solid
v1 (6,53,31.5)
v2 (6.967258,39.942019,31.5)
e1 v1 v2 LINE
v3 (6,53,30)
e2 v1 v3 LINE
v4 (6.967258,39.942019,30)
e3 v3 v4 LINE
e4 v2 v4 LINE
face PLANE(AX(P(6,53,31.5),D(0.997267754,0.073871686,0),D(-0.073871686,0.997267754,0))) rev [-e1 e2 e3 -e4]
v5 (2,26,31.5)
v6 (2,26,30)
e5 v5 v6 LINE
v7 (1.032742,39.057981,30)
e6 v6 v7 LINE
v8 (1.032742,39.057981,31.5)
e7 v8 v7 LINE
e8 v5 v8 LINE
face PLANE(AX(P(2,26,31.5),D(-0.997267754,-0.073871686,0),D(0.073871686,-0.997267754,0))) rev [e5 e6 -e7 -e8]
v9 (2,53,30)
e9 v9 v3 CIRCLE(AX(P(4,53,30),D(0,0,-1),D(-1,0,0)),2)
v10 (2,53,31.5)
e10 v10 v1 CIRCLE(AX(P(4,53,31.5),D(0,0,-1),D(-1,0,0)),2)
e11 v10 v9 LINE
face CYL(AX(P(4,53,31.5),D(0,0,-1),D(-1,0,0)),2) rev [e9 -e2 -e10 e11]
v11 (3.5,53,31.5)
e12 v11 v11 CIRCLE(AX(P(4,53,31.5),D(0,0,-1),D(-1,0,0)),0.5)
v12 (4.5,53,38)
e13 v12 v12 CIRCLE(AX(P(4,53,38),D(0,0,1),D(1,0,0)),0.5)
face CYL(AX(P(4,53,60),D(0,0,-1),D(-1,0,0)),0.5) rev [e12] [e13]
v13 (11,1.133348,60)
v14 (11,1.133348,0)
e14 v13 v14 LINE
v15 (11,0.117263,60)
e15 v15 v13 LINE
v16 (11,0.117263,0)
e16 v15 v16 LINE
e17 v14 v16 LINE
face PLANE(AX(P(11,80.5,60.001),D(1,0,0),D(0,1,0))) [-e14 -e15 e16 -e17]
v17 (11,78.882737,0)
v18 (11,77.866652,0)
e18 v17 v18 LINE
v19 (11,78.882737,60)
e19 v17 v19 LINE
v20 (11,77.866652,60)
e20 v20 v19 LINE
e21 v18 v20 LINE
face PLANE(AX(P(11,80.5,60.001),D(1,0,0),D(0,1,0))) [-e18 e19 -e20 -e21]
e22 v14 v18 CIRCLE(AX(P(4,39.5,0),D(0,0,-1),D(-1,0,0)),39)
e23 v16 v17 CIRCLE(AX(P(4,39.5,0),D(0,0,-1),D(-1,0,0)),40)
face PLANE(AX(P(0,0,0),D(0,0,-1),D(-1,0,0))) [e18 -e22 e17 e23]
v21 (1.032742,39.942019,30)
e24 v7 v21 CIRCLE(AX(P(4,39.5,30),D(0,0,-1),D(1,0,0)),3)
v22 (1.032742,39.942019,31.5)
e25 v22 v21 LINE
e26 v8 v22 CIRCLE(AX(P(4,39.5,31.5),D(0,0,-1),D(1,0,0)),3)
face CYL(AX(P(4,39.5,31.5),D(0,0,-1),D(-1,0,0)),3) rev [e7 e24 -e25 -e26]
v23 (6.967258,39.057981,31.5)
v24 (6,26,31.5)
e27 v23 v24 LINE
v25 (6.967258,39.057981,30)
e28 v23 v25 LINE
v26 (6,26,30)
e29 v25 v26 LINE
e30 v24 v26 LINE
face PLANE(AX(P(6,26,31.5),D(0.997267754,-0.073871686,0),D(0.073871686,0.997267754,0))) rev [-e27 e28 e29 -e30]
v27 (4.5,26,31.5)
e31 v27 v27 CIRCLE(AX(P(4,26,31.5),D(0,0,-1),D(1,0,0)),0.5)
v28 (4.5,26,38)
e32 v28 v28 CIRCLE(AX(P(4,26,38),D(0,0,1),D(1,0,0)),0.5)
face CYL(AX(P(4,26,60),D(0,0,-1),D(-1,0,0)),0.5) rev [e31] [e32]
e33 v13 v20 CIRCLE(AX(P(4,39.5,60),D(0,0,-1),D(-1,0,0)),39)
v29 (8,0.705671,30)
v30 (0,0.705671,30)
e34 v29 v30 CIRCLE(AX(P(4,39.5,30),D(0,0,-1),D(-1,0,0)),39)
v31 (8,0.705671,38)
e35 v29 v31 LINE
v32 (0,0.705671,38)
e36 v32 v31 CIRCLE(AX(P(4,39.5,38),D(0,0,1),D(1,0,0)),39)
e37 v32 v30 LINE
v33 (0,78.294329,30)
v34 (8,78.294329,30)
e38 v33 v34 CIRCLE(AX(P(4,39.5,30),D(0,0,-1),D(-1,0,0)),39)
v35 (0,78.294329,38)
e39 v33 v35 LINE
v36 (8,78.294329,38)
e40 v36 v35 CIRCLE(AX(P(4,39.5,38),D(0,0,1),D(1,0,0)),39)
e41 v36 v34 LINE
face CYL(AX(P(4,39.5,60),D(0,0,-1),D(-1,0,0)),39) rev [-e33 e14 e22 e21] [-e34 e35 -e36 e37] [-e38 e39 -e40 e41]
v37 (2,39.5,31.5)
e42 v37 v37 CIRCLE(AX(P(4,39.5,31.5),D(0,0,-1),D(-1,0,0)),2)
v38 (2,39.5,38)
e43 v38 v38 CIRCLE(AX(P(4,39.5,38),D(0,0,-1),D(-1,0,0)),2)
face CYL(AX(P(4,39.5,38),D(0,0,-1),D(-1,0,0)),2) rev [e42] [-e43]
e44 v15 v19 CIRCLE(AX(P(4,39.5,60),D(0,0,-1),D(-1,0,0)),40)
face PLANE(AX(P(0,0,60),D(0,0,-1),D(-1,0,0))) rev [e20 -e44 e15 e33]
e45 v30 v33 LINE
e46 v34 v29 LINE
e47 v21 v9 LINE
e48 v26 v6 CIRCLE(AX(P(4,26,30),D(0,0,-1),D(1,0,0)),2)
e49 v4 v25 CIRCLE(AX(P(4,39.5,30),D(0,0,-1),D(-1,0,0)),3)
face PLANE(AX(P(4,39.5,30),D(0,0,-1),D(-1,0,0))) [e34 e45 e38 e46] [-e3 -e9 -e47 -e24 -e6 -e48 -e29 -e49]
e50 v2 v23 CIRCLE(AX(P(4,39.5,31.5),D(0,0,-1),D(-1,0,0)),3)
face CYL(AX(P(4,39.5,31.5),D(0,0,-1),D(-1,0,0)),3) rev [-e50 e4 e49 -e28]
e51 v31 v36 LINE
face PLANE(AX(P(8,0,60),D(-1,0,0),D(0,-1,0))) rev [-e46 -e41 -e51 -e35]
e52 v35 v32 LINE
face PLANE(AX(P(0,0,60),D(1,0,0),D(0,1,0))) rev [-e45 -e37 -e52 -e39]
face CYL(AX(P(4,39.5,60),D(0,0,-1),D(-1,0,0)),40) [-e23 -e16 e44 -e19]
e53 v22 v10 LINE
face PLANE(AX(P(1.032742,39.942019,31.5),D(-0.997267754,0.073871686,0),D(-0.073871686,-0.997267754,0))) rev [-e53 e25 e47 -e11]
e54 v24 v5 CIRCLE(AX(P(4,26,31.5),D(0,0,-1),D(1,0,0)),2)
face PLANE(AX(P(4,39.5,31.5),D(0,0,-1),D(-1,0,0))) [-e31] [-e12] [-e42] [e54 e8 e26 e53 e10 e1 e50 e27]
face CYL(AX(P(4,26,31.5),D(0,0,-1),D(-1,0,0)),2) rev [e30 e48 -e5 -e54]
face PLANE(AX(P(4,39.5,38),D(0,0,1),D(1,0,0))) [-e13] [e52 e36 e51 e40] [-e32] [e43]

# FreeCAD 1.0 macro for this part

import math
import FreeCAD as App
import Part
import Sketcher

V = App.Vector
Q = App.Units.Quantity

doc = App.newDocument("Part")
body = doc.addObject("PartDesign::Body", "Body")

# Sketch on XY plane
sketch1 = doc.addObject("Sketcher::SketchObject", "Sketch")
body.addObject(sketch1)
sketch1.AttachmentSupport = (doc.XY_Plane, [""])
sketch1.MapMode = "FlatFace"
sketch1.addGeometry([
    Part.LineSegment(V(0, 79, 0), V(0, 0, 0)),
    Part.LineSegment(V(0, 0, 0), V(8, 0, 0)),
    Part.LineSegment(V(8, 0, 0), V(8, 79, 0)),
    Part.LineSegment(V(8, 79, 0), V(0, 79, 0)),
], False)
sketch1.addConstraint([
    Sketcher.Constraint("Coincident", 0, 2, 1, 1),
    Sketcher.Constraint("Coincident", 1, 2, 2, 1),
    Sketcher.Constraint("Coincident", 2, 2, 3, 1),
    Sketcher.Constraint("Coincident", 3, 2, 0, 1),
    Sketcher.Constraint("Vertical", 0),
    Sketcher.Constraint("Horizontal", 1),
    Sketcher.Constraint("Vertical", 2),
    Sketcher.Constraint("Horizontal", 3),
    Sketcher.Constraint("Coincident", 0, 2, -1, 1),
    Sketcher.Constraint("DistanceX", 1, 1, 1, 2, Q("8 mm")),
    Sketcher.Constraint("DistanceY", 0, 2, 0, 1, Q("79 mm")),
])
pad1 = doc.addObject("PartDesign::Pad", "Pad")
body.addObject(pad1)
pad1.Profile = sketch1
pad1.Length = 60

# Sketch on XY plane
sketch2 = doc.addObject("Sketcher::SketchObject", "Sketch001")
body.addObject(sketch2)
sketch2.AttachmentSupport = (doc.XY_Plane, [""])
sketch2.MapMode = "FlatFace"
sketch2.addGeometry([
    Part.Circle(V(4, 39.5, 0), V(0, 0, 1), 40),
    Part.Circle(V(4, 39.5, 0), V(0, 0, 1), 39),
], False)
sketch2.addConstraint([
    Sketcher.Constraint("Coincident", 1, 3, 0, 3),
    Sketcher.Constraint("Diameter", 0, Q("80 mm")),
    Sketcher.Constraint("Diameter", 1, Q("78 mm")),
    Sketcher.Constraint("DistanceX", -1, 1, 0, 3, Q("4 mm")),
    Sketcher.Constraint("DistanceY", -1, 1, 0, 3, Q("39.5 mm")),
])
pad2 = doc.addObject("PartDesign::Pad", "Pad001")
body.addObject(pad2)
pad2.Profile = sketch2
pad2.Length = 60

# Sketch on XY plane
sketch3 = doc.addObject("Sketcher::SketchObject", "Sketch002")
body.addObject(sketch3)
sketch3.AttachmentSupport = (doc.XY_Plane, [""])
sketch3.MapMode = "FlatFace"
sketch3.addGeometry(Part.Circle(V(4, 39.5, 0), V(0, 0, 1), 39), False)
sketch3.addConstraint([
    Sketcher.Constraint("Diameter", 0, Q("78 mm")),
    Sketcher.Constraint("DistanceX", -1, 1, 0, 3, Q("4 mm")),
    Sketcher.Constraint("DistanceY", -1, 1, 0, 3, Q("39.5 mm")),
])
pocket1 = doc.addObject("PartDesign::Pocket", "Pocket")
body.addObject(pocket1)
pocket1.Profile = sketch3
pocket1.Length = 30
pocket1.Reversed = True

# Sketch on XY plane
sketch4 = doc.addObject("Sketcher::SketchObject", "Sketch003")
body.addObject(sketch4)
sketch4.AttachmentSupport = (doc.XY_Plane, [""])
sketch4.MapMode = "FlatFace"
sketch4.AttachmentOffset = App.Placement(V(0, 0, 30), App.Rotation())
sketch4.addGeometry([
    Part.LineSegment(V(6, 53, 0), V(6.967258, 39.942019, 0)),  # 0
    Part.ArcOfCircle(Part.Circle(V(4, 39.5, 0), V(0, 0, 1), 3), math.radians(-8.47279), math.radians(8.47279)),  # 1
    Part.LineSegment(V(6.967258, 39.057981, 0), V(6, 26, 0)),  # 2
    Part.ArcOfCircle(Part.Circle(V(4, 26, 0), V(0, 0, 1), 2), math.radians(180), math.radians(360)),  # 3
    Part.LineSegment(V(2, 26, 0), V(1.032742, 39.057981, 0)),  # 4
    Part.ArcOfCircle(Part.Circle(V(4, 39.5, 0), V(0, 0, 1), 3), math.radians(171.52721), math.radians(188.47279)),  # 5
    Part.LineSegment(V(1.032742, 39.942019, 0), V(2, 53, 0)),  # 6
    Part.ArcOfCircle(Part.Circle(V(4, 53, 0), V(0, 0, 1), 2), math.radians(0), math.radians(180)),  # 7
], False)
sketch4.addConstraint([
    Sketcher.Constraint("Coincident", 0, 2, 1, 2),
    Sketcher.Constraint("Coincident", 1, 1, 2, 1),
    Sketcher.Constraint("Coincident", 2, 2, 3, 2),
    Sketcher.Constraint("Coincident", 3, 1, 4, 1),
    Sketcher.Constraint("Coincident", 4, 2, 5, 2),
    Sketcher.Constraint("Coincident", 5, 1, 6, 1),
    Sketcher.Constraint("Coincident", 6, 2, 7, 2),
    Sketcher.Constraint("Coincident", 7, 1, 0, 1),
    Sketcher.Constraint("Coincident", 5, 3, 1, 3),
    Sketcher.Constraint("Equal", 1, 5),
    Sketcher.Constraint("Equal", 3, 7),
    Sketcher.Constraint("Parallel", 0, 4),
    Sketcher.Constraint("Parallel", 2, 6),
    Sketcher.Constraint("Horizontal", 3, 3, 2, 2),
    Sketcher.Constraint("Horizontal", 2, 2, 3, 1),
    Sketcher.Constraint("Horizontal", 1, 1, 4, 2),
    Sketcher.Constraint("Horizontal", 0, 2, 5, 1),
    Sketcher.Constraint("Horizontal", 7, 3, 6, 2),
    Sketcher.Constraint("Horizontal", 6, 2, 7, 1),
    Sketcher.Constraint("Vertical", 1, 3, 3, 3),
    Sketcher.Constraint("Vertical", 0, 2, 1, 1),
    Sketcher.Constraint("Radius", 1, Q("3 mm")),
    Sketcher.Constraint("Radius", 3, Q("2 mm")),
    Sketcher.Constraint("DistanceX", -1, 1, 1, 3, Q("4 mm")),
    Sketcher.Constraint("DistanceY", -1, 1, 3, 3, Q("26 mm")),
    Sketcher.Constraint("DistanceY", -1, 1, 7, 3, Q("53 mm")),
    Sketcher.Constraint("DistanceY", -1, 1, 0, 2, Q("39.942019 mm")),
])
pocket2 = doc.addObject("PartDesign::Pocket", "Pocket001")
body.addObject(pocket2)
pocket2.Profile = sketch4
pocket2.Length = 1.5
pocket2.Reversed = True

# Sketch on XY plane
sketch5 = doc.addObject("Sketcher::SketchObject", "Sketch004")
body.addObject(sketch5)
sketch5.AttachmentSupport = (doc.XY_Plane, [""])
sketch5.MapMode = "FlatFace"
sketch5.AttachmentOffset = App.Placement(V(0, 0, 60), App.Rotation())
sketch5.addGeometry(Part.Circle(V(4, 39.5, 0), V(0, 0, 1), 39), False)
sketch5.addConstraint([
    Sketcher.Constraint("Diameter", 0, Q("78 mm")),
    Sketcher.Constraint("DistanceX", -1, 1, 0, 3, Q("4 mm")),
    Sketcher.Constraint("DistanceY", -1, 1, 0, 3, Q("39.5 mm")),
])
pocket3 = doc.addObject("PartDesign::Pocket", "Pocket002")
body.addObject(pocket3)
pocket3.Profile = sketch5
pocket3.Length = 22

# Sketch on XY plane
sketch6 = doc.addObject("Sketcher::SketchObject", "Sketch005")
body.addObject(sketch6)
sketch6.AttachmentSupport = (doc.XY_Plane, [""])
sketch6.MapMode = "FlatFace"
sketch6.AttachmentOffset = App.Placement(V(0, 0, 31.5), App.Rotation())
sketch6.addGeometry(Part.Circle(V(4, 39.5, 0), V(0, 0, 1), 2), False)
sketch6.addConstraint([
    Sketcher.Constraint("Diameter", 0, Q("4 mm")),
    Sketcher.Constraint("DistanceX", -1, 1, 0, 3, Q("4 mm")),
    Sketcher.Constraint("DistanceY", -1, 1, 0, 3, Q("39.5 mm")),
])
pocket4 = doc.addObject("PartDesign::Pocket", "Pocket003")
body.addObject(pocket4)
pocket4.Profile = sketch6
pocket4.Length = 6.5
pocket4.Reversed = True

# Sketch on XY plane
sketch7 = doc.addObject("Sketcher::SketchObject", "Sketch006")
body.addObject(sketch7)
sketch7.AttachmentSupport = (doc.XY_Plane, [""])
sketch7.MapMode = "FlatFace"
sketch7.AttachmentOffset = App.Placement(V(0, 0, 31.5), App.Rotation())
sketch7.addGeometry([
    Part.Circle(V(4, 53, 0), V(0, 0, 1), 0.5),
    Part.Circle(V(4, 26, 0), V(0, 0, 1), 0.5),
], False)
sketch7.addConstraint([
    Sketcher.Constraint("Equal", 0, 1),
    Sketcher.Constraint("Vertical", 0, 3, 1, 3),
    Sketcher.Constraint("Diameter", 0, Q("1 mm")),
    Sketcher.Constraint("DistanceX", -1, 1, 0, 3, Q("4 mm")),
    Sketcher.Constraint("DistanceY", -1, 1, 0, 3, Q("53 mm")),
    Sketcher.Constraint("DistanceY", -1, 1, 1, 3, Q("26 mm")),
])
pocket5 = doc.addObject("PartDesign::Pocket", "Pocket004")
body.addObject(pocket5)
pocket5.Profile = sketch7
pocket5.Type = "ThroughAll"
pocket5.Reversed = True

# Sketch on XY plane
sketch8 = doc.addObject("Sketcher::SketchObject", "Sketch007")
body.addObject(sketch8)
sketch8.AttachmentSupport = (doc.XY_Plane, [""])
sketch8.MapMode = "FlatFace"
sketch8.addGeometry([
    Part.LineSegment(V(11, 80.5, 0), V(11, -1.5, 0)),
    Part.LineSegment(V(11, -1.5, 0), V(51, -1.5, 0)),
    Part.LineSegment(V(51, -1.5, 0), V(51, 80.5, 0)),
    Part.LineSegment(V(51, 80.5, 0), V(11, 80.5, 0)),
], False)
sketch8.addConstraint([
    Sketcher.Constraint("Coincident", 0, 2, 1, 1),
    Sketcher.Constraint("Coincident", 1, 2, 2, 1),
    Sketcher.Constraint("Coincident", 2, 2, 3, 1),
    Sketcher.Constraint("Coincident", 3, 2, 0, 1),
    Sketcher.Constraint("Vertical", 0),
    Sketcher.Constraint("Horizontal", 1),
    Sketcher.Constraint("Vertical", 2),
    Sketcher.Constraint("Horizontal", 3),
    Sketcher.Constraint("DistanceX", 1, 1, 1, 2, Q("40 mm")),
    Sketcher.Constraint("DistanceY", 0, 2, 0, 1, Q("82 mm")),
    Sketcher.Constraint("DistanceX", -1, 1, 0, 2, Q("11 mm")),
    Sketcher.Constraint("DistanceY", 0, 2, -1, 1, Q("1.5 mm")),
])
pocket6 = doc.addObject("PartDesign::Pocket", "Pocket005")
body.addObject(pocket6)
pocket6.Profile = sketch8
pocket6.Length = 60
pocket6.Reversed = True

doc.recompute()
